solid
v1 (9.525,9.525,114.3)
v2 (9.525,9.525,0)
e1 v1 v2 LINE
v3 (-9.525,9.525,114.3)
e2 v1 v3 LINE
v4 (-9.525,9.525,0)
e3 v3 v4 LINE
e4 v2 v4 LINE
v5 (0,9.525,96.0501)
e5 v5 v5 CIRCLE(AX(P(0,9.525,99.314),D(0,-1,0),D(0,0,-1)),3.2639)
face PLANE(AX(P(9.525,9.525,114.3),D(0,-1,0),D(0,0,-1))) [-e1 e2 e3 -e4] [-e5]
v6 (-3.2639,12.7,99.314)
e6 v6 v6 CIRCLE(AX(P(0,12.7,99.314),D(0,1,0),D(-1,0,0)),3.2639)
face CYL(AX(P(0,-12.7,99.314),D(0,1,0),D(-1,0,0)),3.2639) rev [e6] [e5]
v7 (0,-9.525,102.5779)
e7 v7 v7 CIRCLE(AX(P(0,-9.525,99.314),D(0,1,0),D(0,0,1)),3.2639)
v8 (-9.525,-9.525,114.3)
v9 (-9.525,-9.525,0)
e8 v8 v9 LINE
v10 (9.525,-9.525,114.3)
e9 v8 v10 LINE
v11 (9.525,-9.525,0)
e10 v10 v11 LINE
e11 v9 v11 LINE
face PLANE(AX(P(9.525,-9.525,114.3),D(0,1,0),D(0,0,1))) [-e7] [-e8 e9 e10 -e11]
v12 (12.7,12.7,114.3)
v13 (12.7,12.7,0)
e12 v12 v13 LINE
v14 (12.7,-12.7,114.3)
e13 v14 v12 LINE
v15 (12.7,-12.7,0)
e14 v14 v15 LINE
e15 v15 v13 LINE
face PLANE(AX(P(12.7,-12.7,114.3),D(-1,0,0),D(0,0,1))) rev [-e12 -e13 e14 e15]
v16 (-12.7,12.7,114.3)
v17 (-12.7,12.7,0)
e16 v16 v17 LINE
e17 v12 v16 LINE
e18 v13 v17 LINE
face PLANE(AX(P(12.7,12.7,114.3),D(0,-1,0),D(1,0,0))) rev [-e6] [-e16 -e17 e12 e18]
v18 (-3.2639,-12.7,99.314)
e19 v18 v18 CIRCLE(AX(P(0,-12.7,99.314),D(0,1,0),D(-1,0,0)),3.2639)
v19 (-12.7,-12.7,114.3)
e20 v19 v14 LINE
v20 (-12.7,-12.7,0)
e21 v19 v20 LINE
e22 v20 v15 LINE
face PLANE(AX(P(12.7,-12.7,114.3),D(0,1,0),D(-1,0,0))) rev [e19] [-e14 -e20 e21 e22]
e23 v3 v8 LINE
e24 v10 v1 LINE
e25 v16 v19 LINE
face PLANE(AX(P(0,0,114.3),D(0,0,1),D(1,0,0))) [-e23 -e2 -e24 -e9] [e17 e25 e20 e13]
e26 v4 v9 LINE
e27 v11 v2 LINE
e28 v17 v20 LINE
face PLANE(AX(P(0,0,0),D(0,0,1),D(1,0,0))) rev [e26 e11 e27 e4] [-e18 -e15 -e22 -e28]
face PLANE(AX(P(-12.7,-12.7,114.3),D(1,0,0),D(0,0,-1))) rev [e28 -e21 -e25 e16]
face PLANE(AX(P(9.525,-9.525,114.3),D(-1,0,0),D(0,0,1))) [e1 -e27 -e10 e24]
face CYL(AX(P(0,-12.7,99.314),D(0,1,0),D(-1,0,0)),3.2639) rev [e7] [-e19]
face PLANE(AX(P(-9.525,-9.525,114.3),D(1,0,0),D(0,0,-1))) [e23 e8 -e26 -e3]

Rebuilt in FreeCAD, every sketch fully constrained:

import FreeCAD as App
import Part
import Sketcher
Q = App.Units.Quantity


def add_polygon(sketch, points):
    """Adds a closed chain of lines whose ends are joined by coincident constraints."""
    first, n = sketch.GeometryCount, len(points)
    for a, b in zip(points, points[1:] + points[:1]):
        sketch.addGeometry(Part.LineSegment(App.Vector(*a, 0), App.Vector(*b, 0)), False)
    for i in range(n):
        sketch.addConstraint(Sketcher.Constraint("Coincident", first + i, 2, first + (i + 1) % n, 1))

doc = App.newDocument("Part")
body = doc.addObject("PartDesign::Body", "Body")

# Sketch on XY plane
sketch1 = body.newObject("Sketcher::SketchObject", "Sketch")
sketch1.AttachmentSupport = (doc.getObject("XY_Plane"), [""])
sketch1.MapMode = "FlatFace"
add_polygon(sketch1, [(-12.7, 12.7), (-12.7, -12.7), (12.7, -12.7), (12.7, 12.7)])  # lines 0-3
sketch1.addConstraint(Sketcher.Constraint("Vertical", 0))
sketch1.addConstraint(Sketcher.Constraint("Horizontal", 1))
sketch1.addConstraint(Sketcher.Constraint("Vertical", 2))
sketch1.addConstraint(Sketcher.Constraint("Horizontal", 3))
sketch1.addConstraint(Sketcher.Constraint("Symmetric", 0, 2, 2, 2, -1, 1))
sketch1.addConstraint(Sketcher.Constraint("Equal", 3, 0))
sketch1.addConstraint(Sketcher.Constraint("DistanceX", 1, 1, 1, 2, Q("1 in")))
pad1 = body.newObject("PartDesign::Pad", "Pad")
pad1.Profile = sketch1
pad1.Length = Q("4.5 in")

# Sketch on XY plane
sketch2 = body.newObject("Sketcher::SketchObject", "Sketch001")
sketch2.AttachmentSupport = (doc.getObject("XY_Plane"), [""])
sketch2.MapMode = "FlatFace"
add_polygon(sketch2, [(-9.525, 9.525), (-9.525, -9.525), (9.525, -9.525), (9.525, 9.525)])  # lines 0-3
sketch2.addConstraint(Sketcher.Constraint("Vertical", 0))
sketch2.addConstraint(Sketcher.Constraint("Horizontal", 1))
sketch2.addConstraint(Sketcher.Constraint("Vertical", 2))
sketch2.addConstraint(Sketcher.Constraint("Horizontal", 3))
sketch2.addConstraint(Sketcher.Constraint("Symmetric", 0, 2, 2, 2, -1, 1))
sketch2.addConstraint(Sketcher.Constraint("Equal", 3, 0))
sketch2.addConstraint(Sketcher.Constraint("DistanceX", 1, 1, 1, 2, Q("0.75 in")))
pocket1 = body.newObject("PartDesign::Pocket", "Pocket")
pocket1.Profile = sketch2
pocket1.Type = "ThroughAll"
pocket1.Reversed = True

# Sketch on XZ plane
sketch3 = body.newObject("Sketcher::SketchObject", "Sketch002")
sketch3.AttachmentSupport = (doc.getObject("XZ_Plane"), [""])
sketch3.MapMode = "FlatFace"
sketch3.AttachmentOffset = App.Placement(App.Vector(0, 0, -0.5 * 25.4), App.Rotation())
sketch3.addGeometry(Part.Circle(App.Vector(0, 99.314, 0), App.Vector(0, 0, 1), 3.2639), False)
sketch3.addConstraint(Sketcher.Constraint("PointOnObject", 0, 3, -2))
sketch3.addConstraint(Sketcher.Constraint("Diameter", 0, Q("0.257 in")))
sketch3.addConstraint(Sketcher.Constraint("DistanceY", -1, 1, 0, 3, Q("3.91 in")))
pocket2 = body.newObject("PartDesign::Pocket", "Pocket001")
pocket2.Profile = sketch3
pocket2.Type = "ThroughAll"
pocket2.Reversed = True

doc.recompute()
